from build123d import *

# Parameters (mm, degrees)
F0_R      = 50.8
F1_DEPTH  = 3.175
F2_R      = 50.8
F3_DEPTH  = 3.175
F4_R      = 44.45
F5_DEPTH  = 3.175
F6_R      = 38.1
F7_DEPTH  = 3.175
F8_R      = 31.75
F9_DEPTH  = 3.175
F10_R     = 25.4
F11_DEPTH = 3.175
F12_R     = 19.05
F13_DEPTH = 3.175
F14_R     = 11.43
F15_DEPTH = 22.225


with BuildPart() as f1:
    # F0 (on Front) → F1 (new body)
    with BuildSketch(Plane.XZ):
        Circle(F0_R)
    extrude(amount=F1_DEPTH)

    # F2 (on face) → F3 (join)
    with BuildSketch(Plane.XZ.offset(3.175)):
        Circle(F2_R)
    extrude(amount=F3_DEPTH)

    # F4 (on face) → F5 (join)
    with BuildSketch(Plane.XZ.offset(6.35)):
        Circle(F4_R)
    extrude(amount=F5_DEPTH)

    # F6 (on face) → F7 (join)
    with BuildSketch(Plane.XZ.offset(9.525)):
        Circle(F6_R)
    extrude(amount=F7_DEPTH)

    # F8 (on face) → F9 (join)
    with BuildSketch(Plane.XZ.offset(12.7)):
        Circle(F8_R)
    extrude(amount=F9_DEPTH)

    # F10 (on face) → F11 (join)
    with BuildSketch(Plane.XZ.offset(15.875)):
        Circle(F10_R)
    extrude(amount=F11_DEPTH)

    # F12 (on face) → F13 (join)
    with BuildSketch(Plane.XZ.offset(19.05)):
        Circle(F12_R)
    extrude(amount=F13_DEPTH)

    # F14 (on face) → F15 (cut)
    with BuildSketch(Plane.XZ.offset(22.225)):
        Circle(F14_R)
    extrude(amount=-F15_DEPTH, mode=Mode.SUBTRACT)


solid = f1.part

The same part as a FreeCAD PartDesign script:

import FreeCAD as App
import Part
import Sketcher
from FreeCAD import Vector
Q = App.Units.Quantity

doc = App.newDocument("Part")
params = doc.addObject("Spreadsheet::Sheet", "Params")
for row, (alias, value) in enumerate([
    ("sketch1_diameter", "4 in"),
    ("pad1_length", "0.125 in"),
    ("sketch2_diameter", "4 in"),
    ("pad2_length", "0.125 in"),
    ("sketch3_diameter", "3.5 in"),
    ("pad3_length", "0.125 in"),
    ("sketch4_diameter", "3 in"),
    ("pad4_length", "0.125 in"),
    ("sketch5_diameter", "2.5 in"),
    ("pad5_length", "0.125 in"),
    ("sketch6_diameter", "2 in"),
    ("pad6_length", "0.125 in"),
    ("sketch7_diameter", "1.5 in"),
    ("pad7_length", "0.125 in"),
    ("sketch8_diameter", "0.9 in"),
    ("pocket1_length", "0.875 in"),
], start=1):
    params.set(f"A{row}", alias)
    params.set(f"B{row}", "=" + value)
    params.setAlias(f"B{row}", alias)

body = doc.addObject("PartDesign::Body", "Body")

sketch1 = body.newObject("Sketcher::SketchObject", "Sketch")
sketch1.AttachmentSupport = (doc.getObject("XZ_Plane"), [""])
sketch1.MapMode = "FlatFace"
sketch1.addGeometry(Part.Circle(Vector(0, 0, 0), Vector(0, 0, 1), 51), False)
sketch1.addConstraint([
    Sketcher.Constraint("Coincident", 0, 3, -1, 1),
    Sketcher.Constraint("Diameter", 0, Q("4 in")),
])
sketch1.setExpression("Constraints[1]", "Params.sketch1_diameter")
pad1 = body.newObject("PartDesign::Pad", "Pad")
pad1.Profile = sketch1
pad1.setExpression("Length", "Params.pad1_length")

sketch2 = body.newObject("Sketcher::SketchObject", "Sketch001")
sketch2.AttachmentSupport = (doc.getObject("XZ_Plane"), [""])
sketch2.MapMode = "FlatFace"
sketch2.AttachmentOffset = App.Placement(Vector(0, 0, 0.125 * 25.4), App.Rotation())
sketch2.addGeometry(Part.Circle(Vector(0, 0, 0), Vector(0, 0, 1), 51), False)
sketch2.addConstraint([
    Sketcher.Constraint("Coincident", 0, 3, -1, 1),
    Sketcher.Constraint("Diameter", 0, Q("4 in")),
])
sketch2.setExpression("Constraints[1]", "Params.sketch2_diameter")
pad2 = body.newObject("PartDesign::Pad", "Pad001")
pad2.Profile = sketch2
pad2.setExpression("Length", "Params.pad2_length")

sketch3 = body.newObject("Sketcher::SketchObject", "Sketch002")
sketch3.AttachmentSupport = (doc.getObject("XZ_Plane"), [""])
sketch3.MapMode = "FlatFace"
sketch3.AttachmentOffset = App.Placement(Vector(0, 0, 0.25 * 25.4), App.Rotation())
sketch3.addGeometry(Part.Circle(Vector(0, 0, 0), Vector(0, 0, 1), 44), False)
sketch3.addConstraint([
    Sketcher.Constraint("Coincident", 0, 3, -1, 1),
    Sketcher.Constraint("Diameter", 0, Q("3.5 in")),
])
sketch3.setExpression("Constraints[1]", "Params.sketch3_diameter")
pad3 = body.newObject("PartDesign::Pad", "Pad002")
pad3.Profile = sketch3
pad3.setExpression("Length", "Params.pad3_length")

sketch4 = body.newObject("Sketcher::SketchObject", "Sketch003")
sketch4.AttachmentSupport = (doc.getObject("XZ_Plane"), [""])
sketch4.MapMode = "FlatFace"
sketch4.AttachmentOffset = App.Placement(Vector(0, 0, 0.375 * 25.4), App.Rotation())
sketch4.addGeometry(Part.Circle(Vector(0, 0, 0), Vector(0, 0, 1), 38), False)
sketch4.addConstraint([
    Sketcher.Constraint("Coincident", 0, 3, -1, 1),
    Sketcher.Constraint("Diameter", 0, Q("3 in")),
])
sketch4.setExpression("Constraints[1]", "Params.sketch4_diameter")
pad4 = body.newObject("PartDesign::Pad", "Pad003")
pad4.Profile = sketch4
pad4.setExpression("Length", "Params.pad4_length")

sketch5 = body.newObject("Sketcher::SketchObject", "Sketch004")
sketch5.AttachmentSupport = (doc.getObject("XZ_Plane"), [""])
sketch5.MapMode = "FlatFace"
sketch5.AttachmentOffset = App.Placement(Vector(0, 0, 0.5 * 25.4), App.Rotation())
sketch5.addGeometry(Part.Circle(Vector(0, 0, 0), Vector(0, 0, 1), 32), False)
sketch5.addConstraint([
    Sketcher.Constraint("Coincident", 0, 3, -1, 1),
    Sketcher.Constraint("Diameter", 0, Q("2.5 in")),
])
sketch5.setExpression("Constraints[1]", "Params.sketch5_diameter")
pad5 = body.newObject("PartDesign::Pad", "Pad004")
pad5.Profile = sketch5
pad5.setExpression("Length", "Params.pad5_length")

sketch6 = body.newObject("Sketcher::SketchObject", "Sketch005")
sketch6.AttachmentSupport = (doc.getObject("XZ_Plane"), [""])
sketch6.MapMode = "FlatFace"
sketch6.AttachmentOffset = App.Placement(Vector(0, 0, 0.625 * 25.4), App.Rotation())
sketch6.addGeometry(Part.Circle(Vector(0, 0, 0), Vector(0, 0, 1), 25), False)
sketch6.addConstraint([
    Sketcher.Constraint("Coincident", 0, 3, -1, 1),
    Sketcher.Constraint("Diameter", 0, Q("2 in")),
])
sketch6.setExpression("Constraints[1]", "Params.sketch6_diameter")
pad6 = body.newObject("PartDesign::Pad", "Pad005")
pad6.Profile = sketch6
pad6.setExpression("Length", "Params.pad6_length")

sketch7 = body.newObject("Sketcher::SketchObject", "Sketch006")
sketch7.AttachmentSupport = (doc.getObject("XZ_Plane"), [""])
sketch7.MapMode = "FlatFace"
sketch7.AttachmentOffset = App.Placement(Vector(0, 0, 0.75 * 25.4), App.Rotation())
sketch7.addGeometry(Part.Circle(Vector(0, 0, 0), Vector(0, 0, 1), 19), False)
sketch7.addConstraint([
    Sketcher.Constraint("Coincident", 0, 3, -1, 1),
    Sketcher.Constraint("Diameter", 0, Q("1.5 in")),
])
sketch7.setExpression("Constraints[1]", "Params.sketch7_diameter")
pad7 = body.newObject("PartDesign::Pad", "Pad006")
pad7.Profile = sketch7
pad7.setExpression("Length", "Params.pad7_length")

sketch8 = body.newObject("Sketcher::SketchObject", "Sketch007")
sketch8.AttachmentSupport = (doc.getObject("XZ_Plane"), [""])
sketch8.MapMode = "FlatFace"
sketch8.AttachmentOffset = App.Placement(Vector(0, 0, 0.875 * 25.4), App.Rotation())
sketch8.addGeometry(Part.Circle(Vector(0, 0, 0), Vector(0, 0, 1), 11), False)
sketch8.addConstraint([
    Sketcher.Constraint("Coincident", 0, 3, -1, 1),
    Sketcher.Constraint("Diameter", 0, Q("0.9 in")),
])
sketch8.setExpression("Constraints[1]", "Params.sketch8_diameter")
pocket1 = body.newObject("PartDesign::Pocket", "Pocket")
pocket1.Profile = sketch8
pocket1.setExpression("Length", "Params.pocket1_length")

doc.recompute()
